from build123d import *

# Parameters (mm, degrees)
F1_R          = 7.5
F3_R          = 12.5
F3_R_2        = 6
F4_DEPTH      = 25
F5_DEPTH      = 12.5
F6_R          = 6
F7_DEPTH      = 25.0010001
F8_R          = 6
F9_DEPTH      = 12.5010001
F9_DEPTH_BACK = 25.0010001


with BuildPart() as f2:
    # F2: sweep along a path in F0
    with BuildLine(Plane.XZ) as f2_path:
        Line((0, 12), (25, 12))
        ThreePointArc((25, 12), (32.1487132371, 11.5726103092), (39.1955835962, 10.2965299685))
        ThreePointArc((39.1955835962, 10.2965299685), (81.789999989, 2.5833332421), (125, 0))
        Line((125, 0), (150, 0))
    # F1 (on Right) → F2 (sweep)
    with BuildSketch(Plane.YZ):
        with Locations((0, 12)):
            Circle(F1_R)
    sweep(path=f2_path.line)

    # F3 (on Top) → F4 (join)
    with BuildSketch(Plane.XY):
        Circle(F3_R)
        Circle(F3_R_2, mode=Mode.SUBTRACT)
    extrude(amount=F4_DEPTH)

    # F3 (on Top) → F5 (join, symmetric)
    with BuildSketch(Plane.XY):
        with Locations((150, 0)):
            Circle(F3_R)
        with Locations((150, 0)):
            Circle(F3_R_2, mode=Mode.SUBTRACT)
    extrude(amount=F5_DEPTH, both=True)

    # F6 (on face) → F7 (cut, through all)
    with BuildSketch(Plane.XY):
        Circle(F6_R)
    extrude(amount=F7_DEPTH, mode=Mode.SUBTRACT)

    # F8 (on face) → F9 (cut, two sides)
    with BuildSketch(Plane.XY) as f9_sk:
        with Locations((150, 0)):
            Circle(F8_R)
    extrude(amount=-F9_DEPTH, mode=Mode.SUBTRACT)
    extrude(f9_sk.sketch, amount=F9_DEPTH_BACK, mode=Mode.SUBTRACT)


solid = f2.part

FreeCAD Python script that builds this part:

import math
import FreeCAD as App
import Part
import Sketcher

V = App.Vector

doc = App.newDocument("Part")
body = doc.addObject("PartDesign::Body", "Body")

# Sketch on YZ plane
sketch1 = body.newObject("Sketcher::SketchObject", "Sketch")
sketch1.AttachmentSupport = (doc.getObject("YZ_Plane"), [""])
sketch1.MapMode = "FlatFace"
sketch1.addGeometry(Part.Circle(V(0, 12, 0), V(0, 0, 1), 8), False)
sketch1.addConstraint([
    Sketcher.Constraint("PointOnObject", 0, 3, -2),
    Sketcher.Constraint("Diameter", 0, 15.0),
    Sketcher.Constraint("DistanceY", -1, 1, 0, 3, 12.0),
])

# Sketch on XZ plane
sketch2 = body.newObject("Sketcher::SketchObject", "Sketch001")
sketch2.AttachmentSupport = (doc.getObject("XZ_Plane"), [""])
sketch2.MapMode = "FlatFace"
sketch2.addGeometry([
    Part.LineSegment(V(0, 12, 0), V(25, 12, 0)),
    Part.ArcOfCircle(Part.Circle(V(25, -48, 0), V(0, 0, 1), 60), math.radians(76.31), math.radians(90)),
    Part.ArcOfCircle(Part.Circle(V(125, 363, 0), V(0, 0, 1), 363), math.radians(-103.69), math.radians(-90)),
    Part.LineSegment(V(125, 0, 0), V(150, 0, 0)),
], False)
sketch2.addConstraint([
    Sketcher.Constraint("Tangent", 0, 2, 1, 2),
    Sketcher.Constraint("Tangent", 1, 1, 2, 1),
    Sketcher.Constraint("Tangent", 2, 2, 3, 1),
    Sketcher.Constraint("Horizontal", 0),
    Sketcher.Constraint("Horizontal", 3),
    Sketcher.Constraint("PointOnObject", 0, 1, -2),
    Sketcher.Constraint("PointOnObject", 2, 2, -1),
    Sketcher.Constraint("Equal", 0, 3),
    Sketcher.Constraint("Radius", 1, 60.0),
    Sketcher.Constraint("DistanceX", 0, 1, 0, 2, 25.0),
    Sketcher.Constraint("DistanceY", 1, 3, -1, 1, 48.0),
    Sketcher.Constraint("DistanceX", -1, 1, 2, 3, 125.0),
])
doc.recompute()

additivepipe = body.newObject("PartDesign::AdditivePipe", "AdditivePipe")
additivepipe.Profile = sketch1
additivepipe.Spine = (sketch2, ["Edge1", "Edge2", "Edge3", "Edge4"])

# Sketch on XY plane
sketch3 = body.newObject("Sketcher::SketchObject", "Sketch002")
sketch3.AttachmentSupport = (doc.getObject("XY_Plane"), [""])
sketch3.MapMode = "FlatFace"
sketch3.addGeometry([
    Part.Circle(V(0, 0, 0), V(0, 0, 1), 12),
    Part.Circle(V(0, 0, 0), V(0, 0, 1), 6),
], False)
sketch3.addConstraint([
    Sketcher.Constraint("Coincident", 0, 3, -1, 1),
    Sketcher.Constraint("Coincident", 1, 3, -1, 1),
    Sketcher.Constraint("Diameter", 0, 25.0),
    Sketcher.Constraint("Diameter", 1, 12.0),
])
pad1 = body.newObject("PartDesign::Pad", "Pad")
pad1.Profile = sketch3
pad1.Length = 25

# Sketch on XY plane
sketch4 = body.newObject("Sketcher::SketchObject", "Sketch003")
sketch4.AttachmentSupport = (doc.getObject("XY_Plane"), [""])
sketch4.MapMode = "FlatFace"
sketch4.addGeometry([
    Part.Circle(V(150, 0, 0), V(0, 0, 1), 12),
    Part.Circle(V(150, 0, 0), V(0, 0, 1), 6),
], False)
sketch4.addConstraint([
    Sketcher.Constraint("Coincident", 1, 3, 0, 3),
    Sketcher.Constraint("PointOnObject", 0, 3, -1),
    Sketcher.Constraint("Diameter", 0, 25.0),
    Sketcher.Constraint("Diameter", 1, 12.0),
    Sketcher.Constraint("DistanceX", -1, 1, 0, 3, 150.0),
])
pad2 = body.newObject("PartDesign::Pad", "Pad001")
pad2.Profile = sketch4
pad2.Length = 25
pad2.Midplane = True

# Sketch on XY plane
sketch5 = body.newObject("Sketcher::SketchObject", "Sketch004")
sketch5.AttachmentSupport = (doc.getObject("XY_Plane"), [""])
sketch5.MapMode = "FlatFace"
sketch5.addGeometry(Part.Circle(V(0, 0, 0), V(0, 0, 1), 6), False)
sketch5.addConstraint([
    Sketcher.Constraint("Coincident", 0, 3, -1, 1),
    Sketcher.Constraint("Diameter", 0, 12.0),
])
pocket1 = body.newObject("PartDesign::Pocket", "Pocket")
pocket1.Profile = sketch5
pocket1.Type = "ThroughAll"
pocket1.Reversed = True

# Sketch on XY plane
sketch6 = body.newObject("Sketcher::SketchObject", "Sketch005")
sketch6.AttachmentSupport = (doc.getObject("XY_Plane"), [""])
sketch6.MapMode = "FlatFace"
sketch6.addGeometry(Part.Circle(V(150, 0, 0), V(0, 0, 1), 6), False)
sketch6.addConstraint([
    Sketcher.Constraint("PointOnObject", 0, 3, -1),
    Sketcher.Constraint("Diameter", 0, 12.0),
    Sketcher.Constraint("DistanceX", -1, 1, 0, 3, 150.0),
])
pocket2 = body.newObject("PartDesign::Pocket", "Pocket001")
pocket2.Profile = sketch6
pocket2.Type = "ThroughAll"
pocket2.Midplane = True

doc.recompute()
